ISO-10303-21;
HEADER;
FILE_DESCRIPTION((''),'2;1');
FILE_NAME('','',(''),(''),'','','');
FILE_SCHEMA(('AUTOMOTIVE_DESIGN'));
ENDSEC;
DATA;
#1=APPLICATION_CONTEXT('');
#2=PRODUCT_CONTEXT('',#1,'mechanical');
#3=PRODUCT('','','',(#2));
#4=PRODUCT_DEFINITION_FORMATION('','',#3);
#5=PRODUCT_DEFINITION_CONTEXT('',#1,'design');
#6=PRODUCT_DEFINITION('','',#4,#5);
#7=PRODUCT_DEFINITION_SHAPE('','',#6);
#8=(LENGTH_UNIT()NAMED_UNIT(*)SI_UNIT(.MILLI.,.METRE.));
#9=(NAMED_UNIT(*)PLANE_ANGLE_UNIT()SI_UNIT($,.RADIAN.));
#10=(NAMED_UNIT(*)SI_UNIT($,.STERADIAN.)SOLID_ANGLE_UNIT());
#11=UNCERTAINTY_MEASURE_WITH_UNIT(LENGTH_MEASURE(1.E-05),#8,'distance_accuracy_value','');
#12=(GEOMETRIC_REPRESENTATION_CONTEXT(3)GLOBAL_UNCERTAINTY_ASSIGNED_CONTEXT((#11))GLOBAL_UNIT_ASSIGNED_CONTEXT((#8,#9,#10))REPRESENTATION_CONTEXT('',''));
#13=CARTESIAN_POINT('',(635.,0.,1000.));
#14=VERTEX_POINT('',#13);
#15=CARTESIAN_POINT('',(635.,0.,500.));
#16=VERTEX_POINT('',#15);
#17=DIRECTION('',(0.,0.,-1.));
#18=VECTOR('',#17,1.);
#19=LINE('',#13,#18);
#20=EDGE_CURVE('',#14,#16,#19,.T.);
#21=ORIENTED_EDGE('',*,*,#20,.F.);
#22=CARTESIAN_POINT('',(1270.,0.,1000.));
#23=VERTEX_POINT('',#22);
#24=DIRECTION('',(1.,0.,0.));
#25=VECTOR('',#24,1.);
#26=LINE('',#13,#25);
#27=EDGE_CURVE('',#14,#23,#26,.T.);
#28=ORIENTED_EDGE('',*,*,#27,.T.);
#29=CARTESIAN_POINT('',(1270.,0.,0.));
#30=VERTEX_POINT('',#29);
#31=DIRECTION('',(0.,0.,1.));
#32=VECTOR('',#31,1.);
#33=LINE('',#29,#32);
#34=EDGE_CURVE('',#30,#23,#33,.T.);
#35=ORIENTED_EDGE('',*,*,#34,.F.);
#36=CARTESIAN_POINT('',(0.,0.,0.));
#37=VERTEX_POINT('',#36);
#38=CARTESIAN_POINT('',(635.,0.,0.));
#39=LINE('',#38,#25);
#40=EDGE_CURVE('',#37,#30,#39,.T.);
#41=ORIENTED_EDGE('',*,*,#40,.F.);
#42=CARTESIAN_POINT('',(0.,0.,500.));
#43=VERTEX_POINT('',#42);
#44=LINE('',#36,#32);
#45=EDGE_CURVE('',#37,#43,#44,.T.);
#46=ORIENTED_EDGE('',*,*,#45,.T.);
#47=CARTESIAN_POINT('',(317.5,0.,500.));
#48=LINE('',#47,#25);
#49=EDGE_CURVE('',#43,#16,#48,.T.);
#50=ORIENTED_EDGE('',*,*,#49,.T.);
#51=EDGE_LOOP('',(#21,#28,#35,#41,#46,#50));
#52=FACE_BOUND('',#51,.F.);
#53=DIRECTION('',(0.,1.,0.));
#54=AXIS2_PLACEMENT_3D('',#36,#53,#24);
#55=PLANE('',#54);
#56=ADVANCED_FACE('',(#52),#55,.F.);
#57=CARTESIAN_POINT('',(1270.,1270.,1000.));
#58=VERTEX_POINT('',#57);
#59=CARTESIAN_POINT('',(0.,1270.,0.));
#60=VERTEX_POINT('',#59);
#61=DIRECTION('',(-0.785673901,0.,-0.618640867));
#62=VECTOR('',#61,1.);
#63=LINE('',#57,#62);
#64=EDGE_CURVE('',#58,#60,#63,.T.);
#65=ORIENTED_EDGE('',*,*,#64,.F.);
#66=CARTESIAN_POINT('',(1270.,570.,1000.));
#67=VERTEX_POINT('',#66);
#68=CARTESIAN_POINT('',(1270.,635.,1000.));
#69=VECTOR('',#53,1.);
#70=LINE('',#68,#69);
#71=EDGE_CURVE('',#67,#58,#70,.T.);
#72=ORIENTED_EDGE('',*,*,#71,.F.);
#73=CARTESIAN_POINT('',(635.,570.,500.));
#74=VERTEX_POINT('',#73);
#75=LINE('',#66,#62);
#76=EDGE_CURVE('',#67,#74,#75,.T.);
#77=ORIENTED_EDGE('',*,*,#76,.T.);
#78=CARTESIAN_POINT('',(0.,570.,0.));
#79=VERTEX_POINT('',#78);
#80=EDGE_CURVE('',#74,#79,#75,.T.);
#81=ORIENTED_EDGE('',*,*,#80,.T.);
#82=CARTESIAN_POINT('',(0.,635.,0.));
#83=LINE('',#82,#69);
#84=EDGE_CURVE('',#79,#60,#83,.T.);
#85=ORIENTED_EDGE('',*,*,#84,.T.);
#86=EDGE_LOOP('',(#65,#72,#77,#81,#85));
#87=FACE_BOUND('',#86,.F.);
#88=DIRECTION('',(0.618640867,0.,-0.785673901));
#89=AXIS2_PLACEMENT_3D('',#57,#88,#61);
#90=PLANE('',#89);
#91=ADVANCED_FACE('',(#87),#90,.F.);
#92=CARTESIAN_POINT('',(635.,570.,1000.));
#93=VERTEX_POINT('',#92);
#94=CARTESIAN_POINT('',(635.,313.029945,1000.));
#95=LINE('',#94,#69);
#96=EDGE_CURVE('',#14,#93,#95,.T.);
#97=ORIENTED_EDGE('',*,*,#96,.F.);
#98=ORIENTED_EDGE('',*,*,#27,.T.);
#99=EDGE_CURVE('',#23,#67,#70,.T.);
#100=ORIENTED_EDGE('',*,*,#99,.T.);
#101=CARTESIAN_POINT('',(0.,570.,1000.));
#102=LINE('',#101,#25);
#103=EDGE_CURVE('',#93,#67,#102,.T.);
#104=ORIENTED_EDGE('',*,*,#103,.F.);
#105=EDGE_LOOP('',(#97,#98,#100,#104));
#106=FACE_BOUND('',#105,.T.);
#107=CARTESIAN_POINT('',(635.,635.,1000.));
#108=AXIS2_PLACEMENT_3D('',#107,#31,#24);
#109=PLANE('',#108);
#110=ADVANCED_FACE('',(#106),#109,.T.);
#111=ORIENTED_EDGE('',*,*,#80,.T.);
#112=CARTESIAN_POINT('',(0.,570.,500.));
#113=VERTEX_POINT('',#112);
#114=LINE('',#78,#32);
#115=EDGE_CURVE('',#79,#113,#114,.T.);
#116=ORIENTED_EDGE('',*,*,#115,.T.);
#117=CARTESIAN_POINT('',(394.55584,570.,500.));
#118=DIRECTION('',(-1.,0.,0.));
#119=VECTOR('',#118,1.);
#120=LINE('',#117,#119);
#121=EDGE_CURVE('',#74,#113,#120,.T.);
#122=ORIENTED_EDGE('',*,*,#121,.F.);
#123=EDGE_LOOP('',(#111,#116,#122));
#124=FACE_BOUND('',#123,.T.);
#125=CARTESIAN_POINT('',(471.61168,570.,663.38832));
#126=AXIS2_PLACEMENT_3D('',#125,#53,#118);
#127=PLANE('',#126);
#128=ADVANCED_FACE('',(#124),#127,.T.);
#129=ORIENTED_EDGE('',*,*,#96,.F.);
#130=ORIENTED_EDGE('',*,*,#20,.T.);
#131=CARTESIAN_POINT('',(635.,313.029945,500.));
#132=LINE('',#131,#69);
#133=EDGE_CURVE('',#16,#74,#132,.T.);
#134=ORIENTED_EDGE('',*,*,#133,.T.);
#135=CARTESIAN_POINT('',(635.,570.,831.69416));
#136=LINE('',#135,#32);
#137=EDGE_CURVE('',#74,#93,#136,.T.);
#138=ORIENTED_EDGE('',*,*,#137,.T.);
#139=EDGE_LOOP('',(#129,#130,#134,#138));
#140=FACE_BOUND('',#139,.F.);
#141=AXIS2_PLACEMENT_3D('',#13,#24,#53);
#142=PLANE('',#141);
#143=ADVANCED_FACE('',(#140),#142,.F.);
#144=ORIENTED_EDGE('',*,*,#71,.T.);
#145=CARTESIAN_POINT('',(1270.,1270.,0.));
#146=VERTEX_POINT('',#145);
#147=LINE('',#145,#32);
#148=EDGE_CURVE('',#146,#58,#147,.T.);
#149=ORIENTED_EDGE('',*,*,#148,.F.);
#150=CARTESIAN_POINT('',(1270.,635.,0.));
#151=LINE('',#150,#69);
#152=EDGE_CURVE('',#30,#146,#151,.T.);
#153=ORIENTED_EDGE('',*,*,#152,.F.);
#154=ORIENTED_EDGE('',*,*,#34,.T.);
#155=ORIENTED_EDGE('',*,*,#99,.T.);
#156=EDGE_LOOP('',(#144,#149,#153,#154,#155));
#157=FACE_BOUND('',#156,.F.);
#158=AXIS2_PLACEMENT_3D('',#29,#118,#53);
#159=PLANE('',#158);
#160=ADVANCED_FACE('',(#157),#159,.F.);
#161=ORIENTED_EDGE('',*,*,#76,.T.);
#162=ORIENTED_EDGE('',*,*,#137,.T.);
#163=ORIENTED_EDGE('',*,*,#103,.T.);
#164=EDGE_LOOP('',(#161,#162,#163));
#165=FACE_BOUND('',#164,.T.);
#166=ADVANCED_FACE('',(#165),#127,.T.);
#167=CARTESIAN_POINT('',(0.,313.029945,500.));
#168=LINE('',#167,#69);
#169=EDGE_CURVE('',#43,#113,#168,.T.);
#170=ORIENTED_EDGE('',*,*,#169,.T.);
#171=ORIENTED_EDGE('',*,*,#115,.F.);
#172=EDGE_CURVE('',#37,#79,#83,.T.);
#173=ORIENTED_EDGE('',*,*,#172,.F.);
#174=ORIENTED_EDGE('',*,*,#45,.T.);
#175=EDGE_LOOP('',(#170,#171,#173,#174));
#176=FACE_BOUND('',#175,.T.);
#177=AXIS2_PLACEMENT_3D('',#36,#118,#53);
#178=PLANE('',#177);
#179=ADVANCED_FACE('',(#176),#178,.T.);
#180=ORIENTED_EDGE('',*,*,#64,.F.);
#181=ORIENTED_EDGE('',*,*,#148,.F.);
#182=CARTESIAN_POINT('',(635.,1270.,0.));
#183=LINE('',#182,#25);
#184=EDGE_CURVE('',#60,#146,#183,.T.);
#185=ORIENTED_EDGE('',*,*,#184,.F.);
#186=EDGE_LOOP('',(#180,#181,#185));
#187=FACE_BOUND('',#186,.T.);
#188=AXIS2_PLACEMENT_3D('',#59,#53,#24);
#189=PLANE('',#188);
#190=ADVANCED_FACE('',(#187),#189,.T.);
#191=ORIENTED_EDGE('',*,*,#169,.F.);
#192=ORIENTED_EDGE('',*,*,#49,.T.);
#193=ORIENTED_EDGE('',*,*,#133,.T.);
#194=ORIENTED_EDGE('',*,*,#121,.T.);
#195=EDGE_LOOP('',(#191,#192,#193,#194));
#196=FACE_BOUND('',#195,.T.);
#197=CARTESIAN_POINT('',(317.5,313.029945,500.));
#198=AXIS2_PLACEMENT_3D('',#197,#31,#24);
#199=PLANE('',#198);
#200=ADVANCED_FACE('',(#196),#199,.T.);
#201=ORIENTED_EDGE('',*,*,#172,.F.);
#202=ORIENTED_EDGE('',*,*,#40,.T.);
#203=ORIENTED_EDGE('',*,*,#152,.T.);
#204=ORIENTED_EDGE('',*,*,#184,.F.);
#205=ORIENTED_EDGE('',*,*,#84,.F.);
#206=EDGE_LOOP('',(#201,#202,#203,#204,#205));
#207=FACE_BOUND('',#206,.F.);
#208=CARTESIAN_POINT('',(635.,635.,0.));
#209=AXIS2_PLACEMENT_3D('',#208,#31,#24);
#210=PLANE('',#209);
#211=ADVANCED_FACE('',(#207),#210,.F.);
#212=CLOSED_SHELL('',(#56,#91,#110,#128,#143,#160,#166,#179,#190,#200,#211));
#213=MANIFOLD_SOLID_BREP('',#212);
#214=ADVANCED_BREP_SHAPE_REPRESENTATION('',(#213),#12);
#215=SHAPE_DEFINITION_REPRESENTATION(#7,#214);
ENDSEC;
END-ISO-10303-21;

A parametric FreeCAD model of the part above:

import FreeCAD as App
import Part
import Sketcher
Q = App.Units.Quantity

doc = App.newDocument("Part")
body = doc.addObject("PartDesign::Body", "Body")

sketch1 = body.newObject("Sketcher::SketchObject", "Sketch")
sketch1.AttachmentSupport = (doc.getObject("XY_Plane"), [""])
sketch1.MapMode = "FlatFace"
sketch1.addGeometry(Part.LineSegment(App.Vector(0, 1270, 0), App.Vector(0, 0, 0)), False)
sketch1.addGeometry(Part.LineSegment(App.Vector(0, 0, 0), App.Vector(1270, 0, 0)), False)
sketch1.addGeometry(Part.LineSegment(App.Vector(1270, 0, 0), App.Vector(1270, 1270, 0)), False)
sketch1.addGeometry(Part.LineSegment(App.Vector(1270, 1270, 0), App.Vector(0, 1270, 0)), False)
sketch1.addConstraint(Sketcher.Constraint("Coincident", 0, 2, 1, 1))
sketch1.addConstraint(Sketcher.Constraint("Coincident", 1, 2, 2, 1))
sketch1.addConstraint(Sketcher.Constraint("Coincident", 2, 2, 3, 1))
sketch1.addConstraint(Sketcher.Constraint("Coincident", 3, 2, 0, 1))
sketch1.addConstraint(Sketcher.Constraint("Vertical", 0))
sketch1.addConstraint(Sketcher.Constraint("Horizontal", 1))
sketch1.addConstraint(Sketcher.Constraint("Vertical", 2))
sketch1.addConstraint(Sketcher.Constraint("Horizontal", 3))
sketch1.addConstraint(Sketcher.Constraint("Coincident", 0, 2, -1, 1))
sketch1.addConstraint(Sketcher.Constraint("Equal", 3, 0))
sketch1.addConstraint(Sketcher.Constraint("DistanceX", 1, 1, 1, 2, Q("1270 mm")))
pad1 = body.newObject("PartDesign::Pad", "Pad")
pad1.Profile = sketch1
pad1.Length = 1000

sketch2 = body.newObject("Sketcher::SketchObject", "Sketch001")
sketch2.AttachmentSupport = (doc.getObject("XY_Plane"), [""])
sketch2.MapMode = "FlatFace"
sketch2.AttachmentOffset = App.Placement(App.Vector(0, 0, 1000), App.Rotation())
sketch2.addGeometry(Part.LineSegment(App.Vector(0, 626.05989, 0), App.Vector(0, 0, 0)), False)
sketch2.addGeometry(Part.LineSegment(App.Vector(0, 0, 0), App.Vector(635, 0, 0)), False)
sketch2.addGeometry(Part.LineSegment(App.Vector(635, 0, 0), App.Vector(635, 626.05989, 0)), False)
sketch2.addGeometry(Part.LineSegment(App.Vector(635, 626.05989, 0), App.Vector(0, 626.05989, 0)), False)
sketch2.addConstraint(Sketcher.Constraint("Coincident", 0, 2, 1, 1))
sketch2.addConstraint(Sketcher.Constraint("Coincident", 1, 2, 2, 1))
sketch2.addConstraint(Sketcher.Constraint("Coincident", 2, 2, 3, 1))
sketch2.addConstraint(Sketcher.Constraint("Coincident", 3, 2, 0, 1))
sketch2.addConstraint(Sketcher.Constraint("Vertical", 0))
sketch2.addConstraint(Sketcher.Constraint("Horizontal", 1))
sketch2.addConstraint(Sketcher.Constraint("Vertical", 2))
sketch2.addConstraint(Sketcher.Constraint("Horizontal", 3))
sketch2.addConstraint(Sketcher.Constraint("Coincident", 0, 2, -1, 1))
sketch2.addConstraint(Sketcher.Constraint("DistanceX", 1, 1, 1, 2, Q("635 mm")))
sketch2.addConstraint(Sketcher.Constraint("DistanceY", 0, 2, 0, 1, Q("626.05989 mm")))
pocket1 = body.newObject("PartDesign::Pocket", "Pocket")
pocket1.Profile = sketch2
pocket1.Length = 500

sketch3 = body.newObject("Sketcher::SketchObject", "Sketch002")
sketch3.AttachmentSupport = (doc.getObject("XZ_Plane"), [""])
sketch3.MapMode = "FlatFace"
sketch3.AttachmentOffset = App.Placement(App.Vector(0, 0, -1270), App.Rotation())
sketch3.addGeometry(Part.LineSegment(App.Vector(0, 1000, 0), App.Vector(1270, 1000, 0)), False)
sketch3.addGeometry(Part.LineSegment(App.Vector(1270, 1000, 0), App.Vector(0, 0, 0)), False)
sketch3.addGeometry(Part.LineSegment(App.Vector(0, 0, 0), App.Vector(0, 1000, 0)), False)
sketch3.addConstraint(Sketcher.Constraint("Coincident", 0, 2, 1, 1))
sketch3.addConstraint(Sketcher.Constraint("Coincident", 1, 2, 2, 1))
sketch3.addConstraint(Sketcher.Constraint("Coincident", 2, 2, 0, 1))
sketch3.addConstraint(Sketcher.Constraint("Horizontal", 0))
sketch3.addConstraint(Sketcher.Constraint("Vertical", 2))
sketch3.addConstraint(Sketcher.Constraint("Coincident", 1, 2, -1, 1))
sketch3.addConstraint(Sketcher.Constraint("DistanceX", 0, 1, 0, 2, Q("1270 mm")))
sketch3.addConstraint(Sketcher.Constraint("DistanceY", 2, 1, 2, 2, Q("1000 mm")))
pocket2 = body.newObject("PartDesign::Pocket", "Pocket001")
pocket2.Profile = sketch3
pocket2.Length = 700
pocket2.Reversed = True

doc.recompute()
